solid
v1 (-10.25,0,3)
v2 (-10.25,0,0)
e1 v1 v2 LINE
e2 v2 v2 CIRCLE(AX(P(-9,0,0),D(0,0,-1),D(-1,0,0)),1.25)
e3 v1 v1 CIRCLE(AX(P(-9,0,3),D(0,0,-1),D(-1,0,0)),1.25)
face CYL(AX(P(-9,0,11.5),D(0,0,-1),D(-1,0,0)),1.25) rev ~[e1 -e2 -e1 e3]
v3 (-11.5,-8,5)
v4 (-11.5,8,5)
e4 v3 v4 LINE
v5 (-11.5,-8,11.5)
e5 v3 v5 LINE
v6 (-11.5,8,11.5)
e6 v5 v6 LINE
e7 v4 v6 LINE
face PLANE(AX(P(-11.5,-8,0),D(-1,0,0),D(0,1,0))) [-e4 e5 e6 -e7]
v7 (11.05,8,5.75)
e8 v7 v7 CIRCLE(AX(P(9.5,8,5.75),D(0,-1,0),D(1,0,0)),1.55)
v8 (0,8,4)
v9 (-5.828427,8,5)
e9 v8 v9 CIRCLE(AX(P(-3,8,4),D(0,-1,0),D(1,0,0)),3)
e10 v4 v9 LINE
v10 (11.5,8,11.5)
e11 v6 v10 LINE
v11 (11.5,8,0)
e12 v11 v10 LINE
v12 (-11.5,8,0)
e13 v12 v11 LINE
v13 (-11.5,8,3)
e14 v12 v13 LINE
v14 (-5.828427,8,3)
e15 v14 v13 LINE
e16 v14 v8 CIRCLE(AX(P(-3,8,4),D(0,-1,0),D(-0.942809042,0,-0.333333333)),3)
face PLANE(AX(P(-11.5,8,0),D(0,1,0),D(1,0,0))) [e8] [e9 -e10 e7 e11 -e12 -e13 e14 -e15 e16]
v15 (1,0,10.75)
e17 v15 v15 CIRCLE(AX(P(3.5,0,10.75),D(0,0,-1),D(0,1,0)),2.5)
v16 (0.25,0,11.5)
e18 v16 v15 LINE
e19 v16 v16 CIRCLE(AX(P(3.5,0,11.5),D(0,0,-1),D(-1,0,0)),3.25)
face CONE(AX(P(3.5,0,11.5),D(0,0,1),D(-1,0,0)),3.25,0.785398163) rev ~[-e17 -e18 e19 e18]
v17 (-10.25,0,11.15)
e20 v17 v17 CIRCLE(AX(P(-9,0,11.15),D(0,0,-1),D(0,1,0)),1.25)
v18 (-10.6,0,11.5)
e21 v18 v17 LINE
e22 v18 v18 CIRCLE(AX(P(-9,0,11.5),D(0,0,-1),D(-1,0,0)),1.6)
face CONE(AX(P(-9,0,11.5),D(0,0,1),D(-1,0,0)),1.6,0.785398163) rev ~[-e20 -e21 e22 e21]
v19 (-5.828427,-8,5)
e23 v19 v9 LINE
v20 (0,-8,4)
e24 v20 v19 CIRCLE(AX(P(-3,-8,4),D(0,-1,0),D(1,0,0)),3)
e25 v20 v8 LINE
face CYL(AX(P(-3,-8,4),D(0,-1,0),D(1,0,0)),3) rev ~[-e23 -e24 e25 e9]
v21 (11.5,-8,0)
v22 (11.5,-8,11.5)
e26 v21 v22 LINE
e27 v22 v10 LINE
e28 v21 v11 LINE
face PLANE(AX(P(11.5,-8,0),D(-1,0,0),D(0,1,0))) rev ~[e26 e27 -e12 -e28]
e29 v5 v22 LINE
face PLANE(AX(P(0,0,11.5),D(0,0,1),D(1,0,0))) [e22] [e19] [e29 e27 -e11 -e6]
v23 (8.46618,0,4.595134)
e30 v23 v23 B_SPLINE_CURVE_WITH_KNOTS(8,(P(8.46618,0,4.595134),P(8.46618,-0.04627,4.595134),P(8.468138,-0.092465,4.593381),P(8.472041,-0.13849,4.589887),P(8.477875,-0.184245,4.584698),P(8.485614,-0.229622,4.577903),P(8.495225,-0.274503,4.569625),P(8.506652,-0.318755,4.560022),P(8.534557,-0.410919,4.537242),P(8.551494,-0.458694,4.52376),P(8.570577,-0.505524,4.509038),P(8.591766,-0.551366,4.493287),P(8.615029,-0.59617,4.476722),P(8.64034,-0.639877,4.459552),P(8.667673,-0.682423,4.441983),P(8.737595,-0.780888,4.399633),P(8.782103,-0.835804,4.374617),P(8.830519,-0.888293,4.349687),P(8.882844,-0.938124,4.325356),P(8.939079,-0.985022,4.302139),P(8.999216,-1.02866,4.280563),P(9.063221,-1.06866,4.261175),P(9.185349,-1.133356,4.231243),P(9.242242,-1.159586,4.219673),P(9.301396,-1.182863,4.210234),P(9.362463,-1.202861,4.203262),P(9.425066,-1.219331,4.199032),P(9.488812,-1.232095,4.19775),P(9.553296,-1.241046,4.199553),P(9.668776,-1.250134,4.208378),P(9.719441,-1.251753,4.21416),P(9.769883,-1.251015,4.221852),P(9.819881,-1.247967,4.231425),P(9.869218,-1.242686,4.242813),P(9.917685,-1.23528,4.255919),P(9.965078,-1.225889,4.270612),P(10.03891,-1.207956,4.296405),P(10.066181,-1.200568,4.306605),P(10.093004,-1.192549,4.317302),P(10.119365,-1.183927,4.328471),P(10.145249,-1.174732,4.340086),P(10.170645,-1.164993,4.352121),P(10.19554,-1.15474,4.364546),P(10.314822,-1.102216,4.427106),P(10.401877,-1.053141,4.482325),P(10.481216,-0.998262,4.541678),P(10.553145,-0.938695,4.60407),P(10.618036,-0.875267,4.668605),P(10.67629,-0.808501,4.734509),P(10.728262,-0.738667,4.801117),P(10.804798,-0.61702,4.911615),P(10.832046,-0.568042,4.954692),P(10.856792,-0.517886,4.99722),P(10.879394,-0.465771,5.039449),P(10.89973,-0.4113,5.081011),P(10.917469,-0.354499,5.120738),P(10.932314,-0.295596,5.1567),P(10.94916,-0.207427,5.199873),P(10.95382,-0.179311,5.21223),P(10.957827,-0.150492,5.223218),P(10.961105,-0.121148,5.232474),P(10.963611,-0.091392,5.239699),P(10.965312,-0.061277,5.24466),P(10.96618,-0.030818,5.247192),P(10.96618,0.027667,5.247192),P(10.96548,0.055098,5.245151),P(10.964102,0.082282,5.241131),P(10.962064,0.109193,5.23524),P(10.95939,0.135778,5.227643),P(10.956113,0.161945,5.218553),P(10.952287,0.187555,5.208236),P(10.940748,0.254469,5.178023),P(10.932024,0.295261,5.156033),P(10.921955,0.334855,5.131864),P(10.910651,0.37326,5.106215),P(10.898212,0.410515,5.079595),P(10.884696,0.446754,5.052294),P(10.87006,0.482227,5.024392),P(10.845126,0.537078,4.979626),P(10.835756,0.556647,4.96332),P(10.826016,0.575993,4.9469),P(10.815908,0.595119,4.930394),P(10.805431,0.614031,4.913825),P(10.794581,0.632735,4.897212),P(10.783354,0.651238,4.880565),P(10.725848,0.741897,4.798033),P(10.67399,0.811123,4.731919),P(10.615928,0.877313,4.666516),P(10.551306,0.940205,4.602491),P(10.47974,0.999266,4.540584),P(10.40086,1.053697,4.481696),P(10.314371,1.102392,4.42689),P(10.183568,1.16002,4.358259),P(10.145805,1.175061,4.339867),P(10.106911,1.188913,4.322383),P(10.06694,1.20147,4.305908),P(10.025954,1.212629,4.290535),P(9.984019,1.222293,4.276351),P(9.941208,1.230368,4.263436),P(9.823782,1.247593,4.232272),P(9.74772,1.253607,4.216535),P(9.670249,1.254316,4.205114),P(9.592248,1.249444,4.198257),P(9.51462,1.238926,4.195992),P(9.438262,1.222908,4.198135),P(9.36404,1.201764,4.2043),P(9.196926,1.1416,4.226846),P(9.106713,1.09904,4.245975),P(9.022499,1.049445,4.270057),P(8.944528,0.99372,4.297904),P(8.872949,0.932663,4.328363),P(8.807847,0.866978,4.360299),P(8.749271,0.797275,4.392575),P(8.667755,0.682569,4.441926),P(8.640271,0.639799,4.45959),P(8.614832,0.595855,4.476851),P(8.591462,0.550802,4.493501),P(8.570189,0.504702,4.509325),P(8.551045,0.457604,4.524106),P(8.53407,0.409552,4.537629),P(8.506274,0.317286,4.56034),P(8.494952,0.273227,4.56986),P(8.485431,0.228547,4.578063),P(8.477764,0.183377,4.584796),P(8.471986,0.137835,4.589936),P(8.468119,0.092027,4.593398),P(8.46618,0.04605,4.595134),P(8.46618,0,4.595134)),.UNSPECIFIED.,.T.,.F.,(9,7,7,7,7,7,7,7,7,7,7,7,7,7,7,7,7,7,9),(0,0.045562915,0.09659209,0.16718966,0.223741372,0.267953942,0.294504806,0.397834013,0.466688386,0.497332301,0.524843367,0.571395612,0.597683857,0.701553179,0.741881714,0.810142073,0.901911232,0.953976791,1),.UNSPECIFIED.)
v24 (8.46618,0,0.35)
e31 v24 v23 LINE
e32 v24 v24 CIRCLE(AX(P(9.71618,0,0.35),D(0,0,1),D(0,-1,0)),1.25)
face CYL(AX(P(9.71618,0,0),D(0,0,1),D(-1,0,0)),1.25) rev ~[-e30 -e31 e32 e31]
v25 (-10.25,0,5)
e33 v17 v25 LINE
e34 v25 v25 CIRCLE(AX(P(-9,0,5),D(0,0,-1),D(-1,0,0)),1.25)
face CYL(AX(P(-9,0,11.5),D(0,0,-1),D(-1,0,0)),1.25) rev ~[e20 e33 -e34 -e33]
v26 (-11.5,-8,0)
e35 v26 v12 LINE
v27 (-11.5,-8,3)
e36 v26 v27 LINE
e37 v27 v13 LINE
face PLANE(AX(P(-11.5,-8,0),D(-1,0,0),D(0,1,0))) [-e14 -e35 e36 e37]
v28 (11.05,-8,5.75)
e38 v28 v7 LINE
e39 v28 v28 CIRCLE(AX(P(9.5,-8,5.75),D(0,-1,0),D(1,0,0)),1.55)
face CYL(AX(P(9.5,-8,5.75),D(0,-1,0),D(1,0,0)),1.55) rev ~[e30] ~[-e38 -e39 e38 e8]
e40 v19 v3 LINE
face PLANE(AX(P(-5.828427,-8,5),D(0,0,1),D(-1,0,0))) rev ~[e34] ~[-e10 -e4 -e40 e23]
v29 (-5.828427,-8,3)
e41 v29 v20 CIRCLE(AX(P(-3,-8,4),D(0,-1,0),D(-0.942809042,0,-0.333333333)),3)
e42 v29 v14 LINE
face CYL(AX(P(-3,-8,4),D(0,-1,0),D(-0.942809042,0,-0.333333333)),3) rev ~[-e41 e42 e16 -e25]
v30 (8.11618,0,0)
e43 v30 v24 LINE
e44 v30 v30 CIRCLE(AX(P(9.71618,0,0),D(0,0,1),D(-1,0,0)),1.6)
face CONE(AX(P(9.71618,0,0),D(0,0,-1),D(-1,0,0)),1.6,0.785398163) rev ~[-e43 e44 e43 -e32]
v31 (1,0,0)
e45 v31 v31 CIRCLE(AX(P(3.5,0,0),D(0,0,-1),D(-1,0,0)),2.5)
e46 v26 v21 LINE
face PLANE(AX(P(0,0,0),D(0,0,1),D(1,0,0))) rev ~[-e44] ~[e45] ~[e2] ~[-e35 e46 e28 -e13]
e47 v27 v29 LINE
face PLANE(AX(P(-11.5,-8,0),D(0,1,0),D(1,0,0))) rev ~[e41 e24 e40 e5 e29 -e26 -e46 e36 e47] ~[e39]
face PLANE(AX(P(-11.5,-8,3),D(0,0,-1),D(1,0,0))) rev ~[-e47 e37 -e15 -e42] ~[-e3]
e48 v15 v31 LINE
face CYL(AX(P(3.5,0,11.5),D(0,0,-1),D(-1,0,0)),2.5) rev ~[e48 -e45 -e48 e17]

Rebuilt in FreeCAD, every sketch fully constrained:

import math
import FreeCAD as App
import Part
import Sketcher

V = App.Vector
Q = App.Units.Quantity

doc = App.newDocument("Part")
params = doc.addObject("Spreadsheet::Sheet", "Params")
for row, (alias, value) in enumerate([
    ("sketch1_width", "23 mm"),
    ("sketch1_height", "16 mm"),
    ("pad1_length", "11.5 mm"),
    ("sketch2_diameter", "5 mm"),
    ("hole_diameter", "5 mm"),
    ("hole_csink_diameter", "6.5 mm"),
    ("sketch3_diameter", "2.5 mm"),
    ("hole2_diameter", "2.5 mm"),
    ("hole2_csink_diameter", "3.2 mm"),
    ("sketch4_radius", "3 mm"),
    ("sketch4_diameter", "3.1 mm"),
    ("sketch4_height", "2 mm"),
    ("sketch5_diameter", "2.5 mm"),
    ("hole3_diameter", "2.5 mm"),
    ("hole3_depth", "5.75 mm"),
    ("hole3_csink_diameter", "3.2 mm"),
], start=1):
    params.set(f"A{row}", alias)
    params.set(f"B{row}", "=" + value)
    params.setAlias(f"B{row}", alias)

body = doc.addObject("PartDesign::Body", "Body")

# Sketch on XY plane
sketch1 = doc.addObject("Sketcher::SketchObject", "Sketch")
body.addObject(sketch1)
sketch1.AttachmentSupport = (doc.XY_Plane, [""])
sketch1.MapMode = "FlatFace"
sketch1.addGeometry([
    Part.LineSegment(V(-12, 8, 0), V(-12, -8, 0)),
    Part.LineSegment(V(-12, -8, 0), V(12, -8, 0)),
    Part.LineSegment(V(12, -8, 0), V(12, 8, 0)),
    Part.LineSegment(V(12, 8, 0), V(-12, 8, 0)),
], False)
sketch1.addConstraint([
    Sketcher.Constraint("Coincident", 0, 2, 1, 1),
    Sketcher.Constraint("Coincident", 1, 2, 2, 1),
    Sketcher.Constraint("Coincident", 2, 2, 3, 1),
    Sketcher.Constraint("Coincident", 3, 2, 0, 1),
    Sketcher.Constraint("Vertical", 0),
    Sketcher.Constraint("Horizontal", 1),
    Sketcher.Constraint("Vertical", 2),
    Sketcher.Constraint("Horizontal", 3),
    Sketcher.Constraint("Symmetric", 0, 2, 2, 2, -1, 1),
    Sketcher.Constraint("DistanceX", 1, 1, 1, 2, Q("23 mm")),
    Sketcher.Constraint("DistanceY", 0, 2, 0, 1, Q("16 mm")),
])
sketch1.setExpression("Constraints[9]", "Params.sketch1_width")
sketch1.setExpression("Constraints[10]", "Params.sketch1_height")
pad1 = doc.addObject("PartDesign::Pad", "Pad")
body.addObject(pad1)
pad1.Profile = sketch1
pad1.setExpression("Length", "Params.pad1_length")

# Sketch on XY plane
sketch2 = doc.addObject("Sketcher::SketchObject", "Sketch001")
body.addObject(sketch2)
sketch2.AttachmentSupport = (doc.XY_Plane, [""])
sketch2.MapMode = "FlatFace"
sketch2.AttachmentOffset = App.Placement(V(0, 0, 11.5), App.Rotation())
sketch2.addGeometry(Part.Circle(V(3.5, 0, 0), V(0, 0, 1), 2.5), False)
sketch2.addConstraint([
    Sketcher.Constraint("PointOnObject", 0, 3, -1),
    Sketcher.Constraint("Diameter", 0, Q("5 mm")),
    Sketcher.Constraint("DistanceX", -1, 1, 0, 3, Q("3.5 mm")),
])
sketch2.setExpression("Constraints[1]", "Params.sketch2_diameter")
doc.recompute()
hole = doc.addObject("PartDesign::Hole", "Hole")
body.addObject(hole)
hole.Profile = sketch2
hole.ThreadType = "None"
hole.setExpression("Diameter", "Params.hole_diameter")
hole.DepthType = "ThroughAll"
hole.HoleCutType = "Countersink"
hole.setExpression("HoleCutDiameter", "Params.hole_csink_diameter")
hole.HoleCutCountersinkAngle = 90

# Sketch on XY plane
sketch3 = doc.addObject("Sketcher::SketchObject", "Sketch002")
body.addObject(sketch3)
sketch3.AttachmentSupport = (doc.XY_Plane, [""])
sketch3.MapMode = "FlatFace"
sketch3.AttachmentOffset = App.Placement(V(0, 0, 11.5), App.Rotation())
sketch3.addGeometry(Part.Circle(V(-9, 0, 0), V(0, 0, 1), 1.2), False)
sketch3.addConstraint([
    Sketcher.Constraint("PointOnObject", 0, 3, -1),
    Sketcher.Constraint("Diameter", 0, Q("2.5 mm")),
    Sketcher.Constraint("DistanceX", 0, 3, -1, 1, Q("9 mm")),
])
sketch3.setExpression("Constraints[1]", "Params.sketch3_diameter")
doc.recompute()
hole2 = doc.addObject("PartDesign::Hole", "Hole001")
body.addObject(hole2)
hole2.Profile = sketch3
hole2.ThreadType = "None"
hole2.setExpression("Diameter", "Params.hole2_diameter")
hole2.DepthType = "ThroughAll"
hole2.HoleCutType = "Countersink"
hole2.setExpression("HoleCutDiameter", "Params.hole2_csink_diameter")
hole2.HoleCutCountersinkAngle = 90

# Sketch on XZ plane
sketch4 = doc.addObject("Sketcher::SketchObject", "Sketch003")
body.addObject(sketch4)
sketch4.AttachmentSupport = (doc.XZ_Plane, [""])
sketch4.MapMode = "FlatFace"
sketch4.AttachmentOffset = App.Placement(V(0, 0, 8), App.Rotation())
sketch4.addGeometry([
    Part.ArcOfCircle(Part.Circle(V(-3, 4, 0), V(0, 0, 1), 3), math.radians(-161), math.radians(0)),  # 0
    Part.ArcOfCircle(Part.Circle(V(-3, 4, 0), V(0, 0, 1), 3), math.radians(0), math.radians(161)),  # 1
    Part.LineSegment(V(-5.8, 5, 0), V(-11.5, 5, 0)),  # 2
    Part.LineSegment(V(-11.5, 5, 0), V(-11.5, 3, 0)),  # 3
    Part.LineSegment(V(-11.5, 3, 0), V(-5.8, 3, 0)),  # 4
    Part.Circle(V(9.5, 5.8, 0), V(0, 0, 1), 1.6),  # 5
], False)
sketch4.addConstraint([
    Sketcher.Constraint("Tangent", 0, 2, 1, 1),
    Sketcher.Constraint("Coincident", 1, 2, 2, 1),
    Sketcher.Constraint("Coincident", 2, 2, 3, 1),
    Sketcher.Constraint("Coincident", 3, 2, 4, 1),
    Sketcher.Constraint("Coincident", 4, 2, 0, 1),
    Sketcher.Constraint("Horizontal", 2),
    Sketcher.Constraint("Vertical", 3),
    Sketcher.Constraint("Horizontal", 4),
    Sketcher.Constraint("Equal", 0, 1),
    Sketcher.Constraint("PointOnObject", 0, 2, -2),
    Sketcher.Constraint("Horizontal", 1, 3, 0, 2),
    Sketcher.Constraint("Vertical", 1, 2, 4, 2),
    Sketcher.Constraint("Radius", 0, Q("3 mm")),
    Sketcher.Constraint("Diameter", 5, Q("3.1 mm")),
    Sketcher.Constraint("DistanceY", 3, 2, 3, 1, Q("2 mm")),
    Sketcher.Constraint("DistanceY", -1, 1, 0, 3, Q("4 mm")),
    Sketcher.Constraint("DistanceX", 2, 2, 5, 3, Q("21 mm")),
    Sketcher.Constraint("DistanceX", -1, 1, 5, 3, Q("9.5 mm")),
    Sketcher.Constraint("DistanceY", -1, 1, 5, 3, Q("5.75 mm")),
])
sketch4.setExpression("Constraints[12]", "Params.sketch4_radius")
sketch4.setExpression("Constraints[13]", "Params.sketch4_diameter")
sketch4.setExpression("Constraints[14]", "Params.sketch4_height")
pocket1 = doc.addObject("PartDesign::Pocket", "Pocket")
body.addObject(pocket1)
pocket1.Profile = sketch4
pocket1.Type = "ThroughAll"

# Sketch on XY plane
sketch5 = doc.addObject("Sketcher::SketchObject", "Sketch004")
body.addObject(sketch5)
sketch5.AttachmentSupport = (doc.XY_Plane, [""])
sketch5.MapMode = "FlatFace"
sketch5.addGeometry(Part.Circle(V(9.7, 0, 0), V(0, 0, 1), 1.2), False)
sketch5.addConstraint([
    Sketcher.Constraint("PointOnObject", 0, 3, -1),
    Sketcher.Constraint("Diameter", 0, Q("2.5 mm")),
    Sketcher.Constraint("DistanceX", -1, 1, 0, 3, Q("9.71618 mm")),
])
sketch5.setExpression("Constraints[1]", "Params.sketch5_diameter")
doc.recompute()
hole3 = doc.addObject("PartDesign::Hole", "Hole002")
body.addObject(hole3)
hole3.Profile = sketch5
hole3.ThreadType = "None"
hole3.setExpression("Diameter", "Params.hole3_diameter")
hole3.DepthType = "Dimension"
hole3.setExpression("Depth", "Params.hole3_depth")
hole3.DrillPoint = "Angled"
hole3.DrillPointAngle = 118
hole3.HoleCutType = "Countersink"
hole3.setExpression("HoleCutDiameter", "Params.hole3_csink_diameter")
hole3.HoleCutCountersinkAngle = 90
hole3.Reversed = True

doc.recompute()
